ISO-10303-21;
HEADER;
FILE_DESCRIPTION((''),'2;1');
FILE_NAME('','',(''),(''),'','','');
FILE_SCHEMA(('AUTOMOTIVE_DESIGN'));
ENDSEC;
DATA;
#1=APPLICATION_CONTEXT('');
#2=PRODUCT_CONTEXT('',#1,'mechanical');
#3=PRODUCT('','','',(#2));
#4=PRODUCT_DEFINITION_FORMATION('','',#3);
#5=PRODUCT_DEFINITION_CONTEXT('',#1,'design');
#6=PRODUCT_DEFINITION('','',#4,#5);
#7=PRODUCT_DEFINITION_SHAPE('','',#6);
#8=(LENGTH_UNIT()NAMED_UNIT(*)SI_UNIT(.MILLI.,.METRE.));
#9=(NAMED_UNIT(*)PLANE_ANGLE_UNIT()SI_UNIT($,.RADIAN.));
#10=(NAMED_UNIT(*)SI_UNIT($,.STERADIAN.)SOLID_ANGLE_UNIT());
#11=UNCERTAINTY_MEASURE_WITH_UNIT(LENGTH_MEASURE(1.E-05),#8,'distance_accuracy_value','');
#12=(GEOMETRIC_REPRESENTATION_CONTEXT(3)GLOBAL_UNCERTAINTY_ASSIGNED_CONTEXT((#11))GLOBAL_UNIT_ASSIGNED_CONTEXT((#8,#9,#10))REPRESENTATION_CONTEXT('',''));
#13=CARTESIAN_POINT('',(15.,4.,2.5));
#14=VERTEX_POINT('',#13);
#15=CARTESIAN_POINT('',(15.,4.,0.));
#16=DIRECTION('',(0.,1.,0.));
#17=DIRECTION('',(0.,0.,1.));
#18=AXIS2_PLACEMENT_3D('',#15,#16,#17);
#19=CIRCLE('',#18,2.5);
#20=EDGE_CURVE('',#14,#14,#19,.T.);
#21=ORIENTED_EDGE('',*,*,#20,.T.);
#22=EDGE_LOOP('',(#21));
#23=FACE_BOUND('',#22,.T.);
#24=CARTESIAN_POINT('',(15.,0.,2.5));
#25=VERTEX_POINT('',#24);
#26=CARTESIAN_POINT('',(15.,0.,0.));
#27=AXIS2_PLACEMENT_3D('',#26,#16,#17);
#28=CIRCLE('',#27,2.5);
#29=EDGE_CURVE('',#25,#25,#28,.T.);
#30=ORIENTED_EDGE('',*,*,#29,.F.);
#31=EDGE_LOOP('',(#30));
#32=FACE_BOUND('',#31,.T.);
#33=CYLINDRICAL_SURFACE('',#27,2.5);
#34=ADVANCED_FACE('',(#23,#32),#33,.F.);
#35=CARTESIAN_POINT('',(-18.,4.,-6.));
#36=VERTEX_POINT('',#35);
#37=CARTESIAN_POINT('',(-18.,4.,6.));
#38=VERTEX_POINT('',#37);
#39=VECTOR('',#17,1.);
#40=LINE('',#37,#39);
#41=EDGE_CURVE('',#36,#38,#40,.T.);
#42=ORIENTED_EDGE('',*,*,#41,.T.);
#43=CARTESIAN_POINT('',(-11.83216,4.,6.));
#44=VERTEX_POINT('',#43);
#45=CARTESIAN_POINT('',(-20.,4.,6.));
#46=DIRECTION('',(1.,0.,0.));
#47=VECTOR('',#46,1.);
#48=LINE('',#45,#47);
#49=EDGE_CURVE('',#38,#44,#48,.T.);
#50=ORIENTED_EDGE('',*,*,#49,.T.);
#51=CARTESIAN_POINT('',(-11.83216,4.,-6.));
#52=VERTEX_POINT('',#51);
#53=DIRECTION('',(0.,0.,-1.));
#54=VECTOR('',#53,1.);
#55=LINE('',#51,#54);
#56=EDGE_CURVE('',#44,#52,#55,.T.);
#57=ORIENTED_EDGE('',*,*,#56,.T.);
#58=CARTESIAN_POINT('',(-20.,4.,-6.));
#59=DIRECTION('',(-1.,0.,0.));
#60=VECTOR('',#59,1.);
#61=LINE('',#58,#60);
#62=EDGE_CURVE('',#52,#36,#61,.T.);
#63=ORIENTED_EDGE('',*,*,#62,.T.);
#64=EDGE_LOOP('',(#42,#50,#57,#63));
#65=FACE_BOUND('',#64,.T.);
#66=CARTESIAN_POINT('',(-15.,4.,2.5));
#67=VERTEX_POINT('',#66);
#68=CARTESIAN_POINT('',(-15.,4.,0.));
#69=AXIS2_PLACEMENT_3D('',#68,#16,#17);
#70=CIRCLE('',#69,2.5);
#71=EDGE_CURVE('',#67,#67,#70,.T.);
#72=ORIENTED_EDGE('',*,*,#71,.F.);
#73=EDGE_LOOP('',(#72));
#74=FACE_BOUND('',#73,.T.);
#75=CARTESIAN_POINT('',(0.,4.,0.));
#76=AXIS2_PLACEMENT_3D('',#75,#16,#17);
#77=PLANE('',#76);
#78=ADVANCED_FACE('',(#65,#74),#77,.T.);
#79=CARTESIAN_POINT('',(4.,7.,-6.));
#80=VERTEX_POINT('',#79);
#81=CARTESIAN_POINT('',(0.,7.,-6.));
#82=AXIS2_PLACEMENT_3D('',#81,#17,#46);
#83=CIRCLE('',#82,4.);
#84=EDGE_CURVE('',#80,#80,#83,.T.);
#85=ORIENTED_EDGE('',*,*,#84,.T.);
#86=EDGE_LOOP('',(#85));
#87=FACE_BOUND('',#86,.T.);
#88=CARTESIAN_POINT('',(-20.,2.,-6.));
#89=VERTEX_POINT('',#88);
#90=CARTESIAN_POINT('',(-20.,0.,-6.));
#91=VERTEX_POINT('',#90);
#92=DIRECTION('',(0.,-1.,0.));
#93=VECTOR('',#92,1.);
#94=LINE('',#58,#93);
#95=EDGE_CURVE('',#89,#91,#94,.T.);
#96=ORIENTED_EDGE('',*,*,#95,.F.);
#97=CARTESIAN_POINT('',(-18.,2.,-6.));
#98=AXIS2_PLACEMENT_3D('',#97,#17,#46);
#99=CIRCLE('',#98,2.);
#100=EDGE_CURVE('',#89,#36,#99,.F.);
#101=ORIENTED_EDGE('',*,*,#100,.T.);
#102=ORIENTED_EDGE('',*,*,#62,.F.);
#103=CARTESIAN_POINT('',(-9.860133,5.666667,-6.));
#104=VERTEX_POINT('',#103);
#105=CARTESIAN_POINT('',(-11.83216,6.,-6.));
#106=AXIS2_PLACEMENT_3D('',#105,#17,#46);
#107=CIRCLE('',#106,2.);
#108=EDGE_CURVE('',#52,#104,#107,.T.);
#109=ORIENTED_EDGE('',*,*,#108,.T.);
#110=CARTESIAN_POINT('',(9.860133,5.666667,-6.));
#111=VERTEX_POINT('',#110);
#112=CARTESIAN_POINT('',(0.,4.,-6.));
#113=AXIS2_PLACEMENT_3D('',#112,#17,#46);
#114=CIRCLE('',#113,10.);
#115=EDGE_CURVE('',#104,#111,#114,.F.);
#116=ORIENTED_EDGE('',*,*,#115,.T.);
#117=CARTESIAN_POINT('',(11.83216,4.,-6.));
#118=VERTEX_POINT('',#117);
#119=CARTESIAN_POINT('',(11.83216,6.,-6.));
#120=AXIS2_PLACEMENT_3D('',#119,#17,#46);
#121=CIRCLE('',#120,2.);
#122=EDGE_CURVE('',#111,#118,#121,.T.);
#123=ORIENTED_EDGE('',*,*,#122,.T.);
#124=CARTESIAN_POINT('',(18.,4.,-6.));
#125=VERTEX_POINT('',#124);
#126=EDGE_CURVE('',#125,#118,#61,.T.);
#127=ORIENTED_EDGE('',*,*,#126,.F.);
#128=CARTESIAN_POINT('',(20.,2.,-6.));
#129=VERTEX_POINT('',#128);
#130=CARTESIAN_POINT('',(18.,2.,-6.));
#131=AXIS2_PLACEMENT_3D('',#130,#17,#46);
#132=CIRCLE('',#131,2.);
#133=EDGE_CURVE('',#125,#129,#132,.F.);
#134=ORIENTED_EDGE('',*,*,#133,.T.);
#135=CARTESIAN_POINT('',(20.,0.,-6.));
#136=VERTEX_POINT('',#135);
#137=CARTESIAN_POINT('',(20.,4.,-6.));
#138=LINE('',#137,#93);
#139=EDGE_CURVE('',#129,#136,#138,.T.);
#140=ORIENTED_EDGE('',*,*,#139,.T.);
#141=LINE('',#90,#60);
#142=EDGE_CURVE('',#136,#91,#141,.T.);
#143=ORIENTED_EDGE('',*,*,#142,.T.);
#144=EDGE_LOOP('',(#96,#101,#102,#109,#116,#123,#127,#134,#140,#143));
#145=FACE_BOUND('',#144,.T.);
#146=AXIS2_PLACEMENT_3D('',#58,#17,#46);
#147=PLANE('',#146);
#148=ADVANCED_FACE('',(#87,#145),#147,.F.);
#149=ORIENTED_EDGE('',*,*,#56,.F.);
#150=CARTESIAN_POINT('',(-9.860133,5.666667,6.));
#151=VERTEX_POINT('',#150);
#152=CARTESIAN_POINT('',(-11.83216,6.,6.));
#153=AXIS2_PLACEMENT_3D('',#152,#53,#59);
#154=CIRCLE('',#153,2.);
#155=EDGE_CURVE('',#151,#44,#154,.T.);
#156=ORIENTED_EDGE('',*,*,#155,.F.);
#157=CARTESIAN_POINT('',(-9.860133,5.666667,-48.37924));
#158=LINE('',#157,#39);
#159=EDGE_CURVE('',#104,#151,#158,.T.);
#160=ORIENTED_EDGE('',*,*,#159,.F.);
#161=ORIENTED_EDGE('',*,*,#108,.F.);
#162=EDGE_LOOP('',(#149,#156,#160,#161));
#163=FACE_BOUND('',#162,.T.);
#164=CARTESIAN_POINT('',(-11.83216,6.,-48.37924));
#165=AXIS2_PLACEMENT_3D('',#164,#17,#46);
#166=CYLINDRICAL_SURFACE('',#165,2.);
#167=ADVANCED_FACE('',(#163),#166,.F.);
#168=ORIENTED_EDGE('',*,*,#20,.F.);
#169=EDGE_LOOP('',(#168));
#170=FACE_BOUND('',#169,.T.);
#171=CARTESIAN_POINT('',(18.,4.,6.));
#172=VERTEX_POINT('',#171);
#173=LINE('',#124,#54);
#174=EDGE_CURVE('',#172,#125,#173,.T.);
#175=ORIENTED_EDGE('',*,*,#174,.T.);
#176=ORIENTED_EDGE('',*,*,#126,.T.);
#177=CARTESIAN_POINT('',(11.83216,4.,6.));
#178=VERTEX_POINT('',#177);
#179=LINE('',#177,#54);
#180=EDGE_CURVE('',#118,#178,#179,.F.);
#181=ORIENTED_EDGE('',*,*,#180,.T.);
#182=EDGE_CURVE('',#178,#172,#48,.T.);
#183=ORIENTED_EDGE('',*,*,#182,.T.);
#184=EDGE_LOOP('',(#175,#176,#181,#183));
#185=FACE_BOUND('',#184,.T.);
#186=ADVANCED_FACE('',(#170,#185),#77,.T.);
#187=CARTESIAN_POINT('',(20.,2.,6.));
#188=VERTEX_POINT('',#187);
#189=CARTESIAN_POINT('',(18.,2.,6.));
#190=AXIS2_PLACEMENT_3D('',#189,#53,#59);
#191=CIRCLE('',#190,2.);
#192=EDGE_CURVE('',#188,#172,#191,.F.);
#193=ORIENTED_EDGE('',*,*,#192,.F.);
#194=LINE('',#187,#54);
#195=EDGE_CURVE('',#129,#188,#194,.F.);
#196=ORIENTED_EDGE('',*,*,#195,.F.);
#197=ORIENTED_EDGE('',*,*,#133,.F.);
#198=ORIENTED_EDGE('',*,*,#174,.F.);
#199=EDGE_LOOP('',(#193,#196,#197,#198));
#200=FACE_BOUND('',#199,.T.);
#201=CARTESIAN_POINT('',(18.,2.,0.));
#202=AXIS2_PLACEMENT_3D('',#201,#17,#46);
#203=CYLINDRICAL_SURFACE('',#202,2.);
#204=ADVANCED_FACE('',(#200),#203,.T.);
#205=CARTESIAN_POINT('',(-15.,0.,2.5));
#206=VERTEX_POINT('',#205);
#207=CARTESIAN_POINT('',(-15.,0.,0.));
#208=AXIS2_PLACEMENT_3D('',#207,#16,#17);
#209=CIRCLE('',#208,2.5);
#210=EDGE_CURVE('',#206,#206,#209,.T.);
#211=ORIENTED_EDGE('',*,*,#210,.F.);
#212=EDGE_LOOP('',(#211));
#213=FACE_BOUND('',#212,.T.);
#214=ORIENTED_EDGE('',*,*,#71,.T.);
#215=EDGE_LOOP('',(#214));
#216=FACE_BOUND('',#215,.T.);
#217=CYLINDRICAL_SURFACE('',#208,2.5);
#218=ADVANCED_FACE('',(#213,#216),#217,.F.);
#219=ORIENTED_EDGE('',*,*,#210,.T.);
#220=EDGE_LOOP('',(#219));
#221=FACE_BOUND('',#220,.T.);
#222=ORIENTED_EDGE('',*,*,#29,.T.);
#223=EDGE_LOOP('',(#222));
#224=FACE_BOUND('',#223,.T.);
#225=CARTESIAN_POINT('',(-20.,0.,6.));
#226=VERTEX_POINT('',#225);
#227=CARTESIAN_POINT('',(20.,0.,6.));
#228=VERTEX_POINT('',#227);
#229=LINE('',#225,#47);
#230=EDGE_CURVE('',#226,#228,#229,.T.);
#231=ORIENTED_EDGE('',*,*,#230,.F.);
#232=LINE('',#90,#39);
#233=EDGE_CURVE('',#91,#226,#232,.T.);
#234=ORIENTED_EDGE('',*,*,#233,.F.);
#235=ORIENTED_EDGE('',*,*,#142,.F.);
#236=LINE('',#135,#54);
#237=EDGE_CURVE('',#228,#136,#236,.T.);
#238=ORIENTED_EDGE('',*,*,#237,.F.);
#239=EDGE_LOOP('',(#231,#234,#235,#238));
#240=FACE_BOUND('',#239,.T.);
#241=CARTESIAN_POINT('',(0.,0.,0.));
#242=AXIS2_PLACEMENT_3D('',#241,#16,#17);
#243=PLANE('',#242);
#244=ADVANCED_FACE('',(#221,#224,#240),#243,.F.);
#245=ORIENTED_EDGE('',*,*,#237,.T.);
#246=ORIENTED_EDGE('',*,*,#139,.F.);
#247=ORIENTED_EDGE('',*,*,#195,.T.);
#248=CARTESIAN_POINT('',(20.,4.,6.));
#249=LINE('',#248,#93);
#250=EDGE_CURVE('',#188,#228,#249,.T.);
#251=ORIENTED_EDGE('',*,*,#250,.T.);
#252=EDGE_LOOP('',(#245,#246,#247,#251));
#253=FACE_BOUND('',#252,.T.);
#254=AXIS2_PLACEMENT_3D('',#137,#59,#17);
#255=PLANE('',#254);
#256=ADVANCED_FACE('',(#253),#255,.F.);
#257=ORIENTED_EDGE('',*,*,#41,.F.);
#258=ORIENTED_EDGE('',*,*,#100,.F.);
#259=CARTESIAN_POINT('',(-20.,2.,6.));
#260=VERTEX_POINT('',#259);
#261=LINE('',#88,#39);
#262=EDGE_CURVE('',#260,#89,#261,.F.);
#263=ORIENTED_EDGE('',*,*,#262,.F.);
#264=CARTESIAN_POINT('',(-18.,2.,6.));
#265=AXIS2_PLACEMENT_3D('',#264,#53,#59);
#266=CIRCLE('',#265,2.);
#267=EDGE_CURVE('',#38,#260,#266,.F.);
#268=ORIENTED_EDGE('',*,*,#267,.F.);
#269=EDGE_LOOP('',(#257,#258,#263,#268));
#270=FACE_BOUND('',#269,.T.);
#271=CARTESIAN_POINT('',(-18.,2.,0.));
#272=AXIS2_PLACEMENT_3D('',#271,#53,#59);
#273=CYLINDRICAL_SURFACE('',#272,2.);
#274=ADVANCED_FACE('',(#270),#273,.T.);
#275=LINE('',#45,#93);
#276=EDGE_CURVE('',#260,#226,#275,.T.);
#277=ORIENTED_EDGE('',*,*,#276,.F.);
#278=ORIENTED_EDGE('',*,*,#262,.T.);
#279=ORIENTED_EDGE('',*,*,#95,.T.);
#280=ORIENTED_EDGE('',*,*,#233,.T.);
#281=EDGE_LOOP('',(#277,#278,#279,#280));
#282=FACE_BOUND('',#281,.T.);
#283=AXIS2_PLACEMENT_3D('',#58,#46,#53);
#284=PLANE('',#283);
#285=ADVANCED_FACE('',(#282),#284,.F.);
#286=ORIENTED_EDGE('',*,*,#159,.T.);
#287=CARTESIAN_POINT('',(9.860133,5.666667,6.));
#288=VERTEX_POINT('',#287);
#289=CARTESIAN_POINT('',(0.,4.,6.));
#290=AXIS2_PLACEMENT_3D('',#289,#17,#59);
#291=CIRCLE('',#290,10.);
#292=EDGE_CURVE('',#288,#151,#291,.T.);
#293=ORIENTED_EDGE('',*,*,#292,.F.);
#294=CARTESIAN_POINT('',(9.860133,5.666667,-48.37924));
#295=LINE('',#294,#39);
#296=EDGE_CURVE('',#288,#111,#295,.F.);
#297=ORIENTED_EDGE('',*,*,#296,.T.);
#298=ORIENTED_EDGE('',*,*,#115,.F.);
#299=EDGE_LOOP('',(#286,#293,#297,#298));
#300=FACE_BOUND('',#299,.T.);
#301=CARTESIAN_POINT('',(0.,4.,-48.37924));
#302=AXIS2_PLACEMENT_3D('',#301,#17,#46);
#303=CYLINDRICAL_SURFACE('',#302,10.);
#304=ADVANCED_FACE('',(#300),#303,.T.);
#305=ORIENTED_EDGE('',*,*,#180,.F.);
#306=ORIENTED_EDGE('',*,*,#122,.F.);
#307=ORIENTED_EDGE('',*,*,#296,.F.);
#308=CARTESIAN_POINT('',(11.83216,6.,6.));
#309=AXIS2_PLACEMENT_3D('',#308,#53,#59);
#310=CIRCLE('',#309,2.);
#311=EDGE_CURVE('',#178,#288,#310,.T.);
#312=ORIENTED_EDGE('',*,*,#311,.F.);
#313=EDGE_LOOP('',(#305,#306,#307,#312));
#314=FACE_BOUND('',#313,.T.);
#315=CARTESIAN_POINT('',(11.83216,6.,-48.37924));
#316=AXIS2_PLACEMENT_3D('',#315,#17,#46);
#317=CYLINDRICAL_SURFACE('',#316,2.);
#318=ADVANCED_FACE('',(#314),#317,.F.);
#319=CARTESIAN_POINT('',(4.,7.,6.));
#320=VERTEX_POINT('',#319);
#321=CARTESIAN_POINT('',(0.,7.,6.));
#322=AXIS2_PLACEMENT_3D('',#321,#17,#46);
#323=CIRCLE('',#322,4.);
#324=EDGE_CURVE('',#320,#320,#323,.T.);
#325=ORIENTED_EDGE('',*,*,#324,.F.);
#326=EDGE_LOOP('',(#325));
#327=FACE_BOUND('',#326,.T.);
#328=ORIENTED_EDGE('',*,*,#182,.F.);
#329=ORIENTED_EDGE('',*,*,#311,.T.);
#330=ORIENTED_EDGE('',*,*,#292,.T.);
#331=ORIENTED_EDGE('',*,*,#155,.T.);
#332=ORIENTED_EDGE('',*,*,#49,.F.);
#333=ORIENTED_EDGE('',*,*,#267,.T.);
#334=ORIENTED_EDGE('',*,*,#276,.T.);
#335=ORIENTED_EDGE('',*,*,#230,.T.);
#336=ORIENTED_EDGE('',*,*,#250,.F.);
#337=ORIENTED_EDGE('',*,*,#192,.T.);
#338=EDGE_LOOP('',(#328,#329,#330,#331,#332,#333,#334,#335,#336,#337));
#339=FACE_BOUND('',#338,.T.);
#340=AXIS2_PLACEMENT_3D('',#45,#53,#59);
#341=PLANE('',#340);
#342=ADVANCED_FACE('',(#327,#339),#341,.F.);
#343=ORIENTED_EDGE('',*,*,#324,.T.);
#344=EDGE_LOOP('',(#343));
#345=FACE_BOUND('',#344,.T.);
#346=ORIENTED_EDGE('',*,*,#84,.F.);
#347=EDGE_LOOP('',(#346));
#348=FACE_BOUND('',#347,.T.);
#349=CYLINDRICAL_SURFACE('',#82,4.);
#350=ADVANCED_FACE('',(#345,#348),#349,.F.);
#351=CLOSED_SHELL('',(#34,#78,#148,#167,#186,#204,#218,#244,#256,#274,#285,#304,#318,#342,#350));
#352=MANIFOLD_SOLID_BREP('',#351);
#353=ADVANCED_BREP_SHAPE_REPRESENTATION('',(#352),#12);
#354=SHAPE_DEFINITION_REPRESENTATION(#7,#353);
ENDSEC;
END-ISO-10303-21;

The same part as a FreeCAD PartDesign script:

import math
import FreeCAD as App
import Part
import Sketcher
from FreeCAD import Vector


def edges_at(feature, points):
    """Names of the edges that pass closest to the given points."""
    edges = feature.Shape.Edges
    near = lambda p: min(range(len(edges)), key=lambda i: edges[i].distToShape(Part.Vertex(*p))[0])
    return sorted({f"Edge{near(p) + 1}" for p in points})


def add_polygon(sketch, points):
    """Adds a closed chain of lines whose ends are joined by coincident constraints."""
    first, n = sketch.GeometryCount, len(points)
    for a, b in zip(points, points[1:] + points[:1]):
        sketch.addGeometry(Part.LineSegment(App.Vector(*a, 0), App.Vector(*b, 0)), False)
    for i in range(n):
        sketch.addConstraint(Sketcher.Constraint("Coincident", first + i, 2, first + (i + 1) % n, 1))

doc = App.newDocument("Part")
body = doc.addObject("PartDesign::Body", "Body")

# Sketch on XZ plane
sketch1 = body.newObject("Sketcher::SketchObject", "Sketch")
sketch1.AttachmentSupport = (doc.getObject("XZ_Plane"), [""])
sketch1.MapMode = "FlatFace"
add_polygon(sketch1, [(-20, -6), (-20, 6), (20, 6), (20, -6)])  # lines 0-3
sketch1.addConstraint(Sketcher.Constraint("Vertical", 0))
sketch1.addConstraint(Sketcher.Constraint("Horizontal", 1))
sketch1.addConstraint(Sketcher.Constraint("Vertical", 2))
sketch1.addConstraint(Sketcher.Constraint("Horizontal", 3))
sketch1.addConstraint(Sketcher.Constraint("Symmetric", 0, 2, 2, 2, -1, 1))
sketch1.addConstraint(Sketcher.Constraint("DistanceX", 1, 1, 1, 2, 40.0))
sketch1.addConstraint(Sketcher.Constraint("DistanceY", 0, 1, 0, 2, 12.0))
pad1 = body.newObject("PartDesign::Pad", "Pad")
pad1.Profile = sketch1
pad1.Length = 4
pad1.Reversed = True

# Sketch on XY plane
sketch2 = body.newObject("Sketcher::SketchObject", "Sketch001")
sketch2.AttachmentSupport = (doc.getObject("XY_Plane"), [""])
sketch2.MapMode = "FlatFace"
sketch2.AttachmentOffset = App.Placement(Vector(0, 0, 6), App.Rotation())
sketch2.addGeometry(Part.LineSegment(Vector(20, 4, 0), Vector(10, 4, 0)), False)
sketch2.addGeometry(Part.ArcOfCircle(Part.Circle(Vector(0, 4, 0), Vector(0, 0, 1), 10), math.radians(0), math.radians(180)), False)
sketch2.addGeometry(Part.LineSegment(Vector(-10, 4, 0), Vector(-20, 4, 0)), False)
sketch2.addGeometry(Part.LineSegment(Vector(-20, 4, 0), Vector(-20, 0, 0)), False)
sketch2.addGeometry(Part.LineSegment(Vector(-20, 0, 0), Vector(20, 0, 0)), False)
sketch2.addGeometry(Part.LineSegment(Vector(20, 0, 0), Vector(20, 4, 0)), False)
sketch2.addConstraint(Sketcher.Constraint("Coincident", 0, 2, 1, 1))
sketch2.addConstraint(Sketcher.Constraint("Coincident", 1, 2, 2, 1))
sketch2.addConstraint(Sketcher.Constraint("Coincident", 2, 2, 3, 1))
sketch2.addConstraint(Sketcher.Constraint("Coincident", 3, 2, 4, 1))
sketch2.addConstraint(Sketcher.Constraint("Coincident", 4, 2, 5, 1))
sketch2.addConstraint(Sketcher.Constraint("Coincident", 5, 2, 0, 1))
sketch2.addConstraint(Sketcher.Constraint("Horizontal", 0))
sketch2.addConstraint(Sketcher.Constraint("Horizontal", 2))
sketch2.addConstraint(Sketcher.Constraint("Vertical", 3))
sketch2.addConstraint(Sketcher.Constraint("Horizontal", 4))
sketch2.addConstraint(Sketcher.Constraint("Vertical", 5))
sketch2.addConstraint(Sketcher.Constraint("Symmetric", 3, 2, 4, 2, -1, 1))
sketch2.addConstraint(Sketcher.Constraint("Symmetric", 0, 2, 1, 2, -2))
sketch2.addConstraint(Sketcher.Constraint("Horizontal", 1, 3, 0, 2))
sketch2.addConstraint(Sketcher.Constraint("Radius", 1, 10.0))
sketch2.addConstraint(Sketcher.Constraint("DistanceX", 0, 2, 0, 1, 10.0))
sketch2.addConstraint(Sketcher.Constraint("DistanceY", 3, 2, 3, 1, 4.0))
pad2 = body.newObject("PartDesign::Pad", "Pad001")
pad2.Profile = sketch2
pad2.Length = 12
pad2.Reversed = True

# Sketch on XY plane
sketch3 = body.newObject("Sketcher::SketchObject", "Sketch002")
sketch3.AttachmentSupport = (doc.getObject("XY_Plane"), [""])
sketch3.MapMode = "FlatFace"
sketch3.AttachmentOffset = App.Placement(Vector(0, 0, 6), App.Rotation())
sketch3.addGeometry(Part.Circle(Vector(0, 7, 0), Vector(0, 0, 1), 4), False)
sketch3.addConstraint(Sketcher.Constraint("PointOnObject", 0, 3, -2))
sketch3.addConstraint(Sketcher.Constraint("Diameter", 0, 8.0))
sketch3.addConstraint(Sketcher.Constraint("DistanceY", -1, 1, 0, 3, 7.0))
pocket1 = body.newObject("PartDesign::Pocket", "Pocket")
pocket1.Profile = sketch3
pocket1.Type = "ThroughAll"

# Sketch on XZ plane
sketch4 = body.newObject("Sketcher::SketchObject", "Sketch003")
sketch4.AttachmentSupport = (doc.getObject("XZ_Plane"), [""])
sketch4.MapMode = "FlatFace"
sketch4.AttachmentOffset = App.Placement(Vector(0, 0, -4), App.Rotation())
sketch4.addGeometry(Part.Circle(Vector(-15, 0, 0), Vector(0, 0, 1), 2.5), False)
sketch4.addGeometry(Part.Circle(Vector(15, 0, 0), Vector(0, 0, 1), 2.5), False)
sketch4.addConstraint(Sketcher.Constraint("Equal", 0, 1))
sketch4.addConstraint(Sketcher.Constraint("Symmetric", 0, 3, 1, 3, -1, 1))
sketch4.addConstraint(Sketcher.Constraint("PointOnObject", 0, 3, -1))
sketch4.addConstraint(Sketcher.Constraint("Diameter", 0, 5.0))
sketch4.addConstraint(Sketcher.Constraint("DistanceX", 0, 3, -1, 1, 15.0))
pocket2 = body.newObject("PartDesign::Pocket", "Pocket001")
pocket2.Profile = sketch4
pocket2.Type = "ThroughAll"
pocket2.Reversed = True
doc.recompute()

fillet = body.newObject("PartDesign::Fillet", "Fillet")
fillet.Base = (pocket2, edges_at(pocket2, [
    (-20, 4, 0),
    (-10, 4, 0),
    (10, 4, 0),
    (20, 4, 0),
]))
fillet.Radius = 2

doc.recompute()
